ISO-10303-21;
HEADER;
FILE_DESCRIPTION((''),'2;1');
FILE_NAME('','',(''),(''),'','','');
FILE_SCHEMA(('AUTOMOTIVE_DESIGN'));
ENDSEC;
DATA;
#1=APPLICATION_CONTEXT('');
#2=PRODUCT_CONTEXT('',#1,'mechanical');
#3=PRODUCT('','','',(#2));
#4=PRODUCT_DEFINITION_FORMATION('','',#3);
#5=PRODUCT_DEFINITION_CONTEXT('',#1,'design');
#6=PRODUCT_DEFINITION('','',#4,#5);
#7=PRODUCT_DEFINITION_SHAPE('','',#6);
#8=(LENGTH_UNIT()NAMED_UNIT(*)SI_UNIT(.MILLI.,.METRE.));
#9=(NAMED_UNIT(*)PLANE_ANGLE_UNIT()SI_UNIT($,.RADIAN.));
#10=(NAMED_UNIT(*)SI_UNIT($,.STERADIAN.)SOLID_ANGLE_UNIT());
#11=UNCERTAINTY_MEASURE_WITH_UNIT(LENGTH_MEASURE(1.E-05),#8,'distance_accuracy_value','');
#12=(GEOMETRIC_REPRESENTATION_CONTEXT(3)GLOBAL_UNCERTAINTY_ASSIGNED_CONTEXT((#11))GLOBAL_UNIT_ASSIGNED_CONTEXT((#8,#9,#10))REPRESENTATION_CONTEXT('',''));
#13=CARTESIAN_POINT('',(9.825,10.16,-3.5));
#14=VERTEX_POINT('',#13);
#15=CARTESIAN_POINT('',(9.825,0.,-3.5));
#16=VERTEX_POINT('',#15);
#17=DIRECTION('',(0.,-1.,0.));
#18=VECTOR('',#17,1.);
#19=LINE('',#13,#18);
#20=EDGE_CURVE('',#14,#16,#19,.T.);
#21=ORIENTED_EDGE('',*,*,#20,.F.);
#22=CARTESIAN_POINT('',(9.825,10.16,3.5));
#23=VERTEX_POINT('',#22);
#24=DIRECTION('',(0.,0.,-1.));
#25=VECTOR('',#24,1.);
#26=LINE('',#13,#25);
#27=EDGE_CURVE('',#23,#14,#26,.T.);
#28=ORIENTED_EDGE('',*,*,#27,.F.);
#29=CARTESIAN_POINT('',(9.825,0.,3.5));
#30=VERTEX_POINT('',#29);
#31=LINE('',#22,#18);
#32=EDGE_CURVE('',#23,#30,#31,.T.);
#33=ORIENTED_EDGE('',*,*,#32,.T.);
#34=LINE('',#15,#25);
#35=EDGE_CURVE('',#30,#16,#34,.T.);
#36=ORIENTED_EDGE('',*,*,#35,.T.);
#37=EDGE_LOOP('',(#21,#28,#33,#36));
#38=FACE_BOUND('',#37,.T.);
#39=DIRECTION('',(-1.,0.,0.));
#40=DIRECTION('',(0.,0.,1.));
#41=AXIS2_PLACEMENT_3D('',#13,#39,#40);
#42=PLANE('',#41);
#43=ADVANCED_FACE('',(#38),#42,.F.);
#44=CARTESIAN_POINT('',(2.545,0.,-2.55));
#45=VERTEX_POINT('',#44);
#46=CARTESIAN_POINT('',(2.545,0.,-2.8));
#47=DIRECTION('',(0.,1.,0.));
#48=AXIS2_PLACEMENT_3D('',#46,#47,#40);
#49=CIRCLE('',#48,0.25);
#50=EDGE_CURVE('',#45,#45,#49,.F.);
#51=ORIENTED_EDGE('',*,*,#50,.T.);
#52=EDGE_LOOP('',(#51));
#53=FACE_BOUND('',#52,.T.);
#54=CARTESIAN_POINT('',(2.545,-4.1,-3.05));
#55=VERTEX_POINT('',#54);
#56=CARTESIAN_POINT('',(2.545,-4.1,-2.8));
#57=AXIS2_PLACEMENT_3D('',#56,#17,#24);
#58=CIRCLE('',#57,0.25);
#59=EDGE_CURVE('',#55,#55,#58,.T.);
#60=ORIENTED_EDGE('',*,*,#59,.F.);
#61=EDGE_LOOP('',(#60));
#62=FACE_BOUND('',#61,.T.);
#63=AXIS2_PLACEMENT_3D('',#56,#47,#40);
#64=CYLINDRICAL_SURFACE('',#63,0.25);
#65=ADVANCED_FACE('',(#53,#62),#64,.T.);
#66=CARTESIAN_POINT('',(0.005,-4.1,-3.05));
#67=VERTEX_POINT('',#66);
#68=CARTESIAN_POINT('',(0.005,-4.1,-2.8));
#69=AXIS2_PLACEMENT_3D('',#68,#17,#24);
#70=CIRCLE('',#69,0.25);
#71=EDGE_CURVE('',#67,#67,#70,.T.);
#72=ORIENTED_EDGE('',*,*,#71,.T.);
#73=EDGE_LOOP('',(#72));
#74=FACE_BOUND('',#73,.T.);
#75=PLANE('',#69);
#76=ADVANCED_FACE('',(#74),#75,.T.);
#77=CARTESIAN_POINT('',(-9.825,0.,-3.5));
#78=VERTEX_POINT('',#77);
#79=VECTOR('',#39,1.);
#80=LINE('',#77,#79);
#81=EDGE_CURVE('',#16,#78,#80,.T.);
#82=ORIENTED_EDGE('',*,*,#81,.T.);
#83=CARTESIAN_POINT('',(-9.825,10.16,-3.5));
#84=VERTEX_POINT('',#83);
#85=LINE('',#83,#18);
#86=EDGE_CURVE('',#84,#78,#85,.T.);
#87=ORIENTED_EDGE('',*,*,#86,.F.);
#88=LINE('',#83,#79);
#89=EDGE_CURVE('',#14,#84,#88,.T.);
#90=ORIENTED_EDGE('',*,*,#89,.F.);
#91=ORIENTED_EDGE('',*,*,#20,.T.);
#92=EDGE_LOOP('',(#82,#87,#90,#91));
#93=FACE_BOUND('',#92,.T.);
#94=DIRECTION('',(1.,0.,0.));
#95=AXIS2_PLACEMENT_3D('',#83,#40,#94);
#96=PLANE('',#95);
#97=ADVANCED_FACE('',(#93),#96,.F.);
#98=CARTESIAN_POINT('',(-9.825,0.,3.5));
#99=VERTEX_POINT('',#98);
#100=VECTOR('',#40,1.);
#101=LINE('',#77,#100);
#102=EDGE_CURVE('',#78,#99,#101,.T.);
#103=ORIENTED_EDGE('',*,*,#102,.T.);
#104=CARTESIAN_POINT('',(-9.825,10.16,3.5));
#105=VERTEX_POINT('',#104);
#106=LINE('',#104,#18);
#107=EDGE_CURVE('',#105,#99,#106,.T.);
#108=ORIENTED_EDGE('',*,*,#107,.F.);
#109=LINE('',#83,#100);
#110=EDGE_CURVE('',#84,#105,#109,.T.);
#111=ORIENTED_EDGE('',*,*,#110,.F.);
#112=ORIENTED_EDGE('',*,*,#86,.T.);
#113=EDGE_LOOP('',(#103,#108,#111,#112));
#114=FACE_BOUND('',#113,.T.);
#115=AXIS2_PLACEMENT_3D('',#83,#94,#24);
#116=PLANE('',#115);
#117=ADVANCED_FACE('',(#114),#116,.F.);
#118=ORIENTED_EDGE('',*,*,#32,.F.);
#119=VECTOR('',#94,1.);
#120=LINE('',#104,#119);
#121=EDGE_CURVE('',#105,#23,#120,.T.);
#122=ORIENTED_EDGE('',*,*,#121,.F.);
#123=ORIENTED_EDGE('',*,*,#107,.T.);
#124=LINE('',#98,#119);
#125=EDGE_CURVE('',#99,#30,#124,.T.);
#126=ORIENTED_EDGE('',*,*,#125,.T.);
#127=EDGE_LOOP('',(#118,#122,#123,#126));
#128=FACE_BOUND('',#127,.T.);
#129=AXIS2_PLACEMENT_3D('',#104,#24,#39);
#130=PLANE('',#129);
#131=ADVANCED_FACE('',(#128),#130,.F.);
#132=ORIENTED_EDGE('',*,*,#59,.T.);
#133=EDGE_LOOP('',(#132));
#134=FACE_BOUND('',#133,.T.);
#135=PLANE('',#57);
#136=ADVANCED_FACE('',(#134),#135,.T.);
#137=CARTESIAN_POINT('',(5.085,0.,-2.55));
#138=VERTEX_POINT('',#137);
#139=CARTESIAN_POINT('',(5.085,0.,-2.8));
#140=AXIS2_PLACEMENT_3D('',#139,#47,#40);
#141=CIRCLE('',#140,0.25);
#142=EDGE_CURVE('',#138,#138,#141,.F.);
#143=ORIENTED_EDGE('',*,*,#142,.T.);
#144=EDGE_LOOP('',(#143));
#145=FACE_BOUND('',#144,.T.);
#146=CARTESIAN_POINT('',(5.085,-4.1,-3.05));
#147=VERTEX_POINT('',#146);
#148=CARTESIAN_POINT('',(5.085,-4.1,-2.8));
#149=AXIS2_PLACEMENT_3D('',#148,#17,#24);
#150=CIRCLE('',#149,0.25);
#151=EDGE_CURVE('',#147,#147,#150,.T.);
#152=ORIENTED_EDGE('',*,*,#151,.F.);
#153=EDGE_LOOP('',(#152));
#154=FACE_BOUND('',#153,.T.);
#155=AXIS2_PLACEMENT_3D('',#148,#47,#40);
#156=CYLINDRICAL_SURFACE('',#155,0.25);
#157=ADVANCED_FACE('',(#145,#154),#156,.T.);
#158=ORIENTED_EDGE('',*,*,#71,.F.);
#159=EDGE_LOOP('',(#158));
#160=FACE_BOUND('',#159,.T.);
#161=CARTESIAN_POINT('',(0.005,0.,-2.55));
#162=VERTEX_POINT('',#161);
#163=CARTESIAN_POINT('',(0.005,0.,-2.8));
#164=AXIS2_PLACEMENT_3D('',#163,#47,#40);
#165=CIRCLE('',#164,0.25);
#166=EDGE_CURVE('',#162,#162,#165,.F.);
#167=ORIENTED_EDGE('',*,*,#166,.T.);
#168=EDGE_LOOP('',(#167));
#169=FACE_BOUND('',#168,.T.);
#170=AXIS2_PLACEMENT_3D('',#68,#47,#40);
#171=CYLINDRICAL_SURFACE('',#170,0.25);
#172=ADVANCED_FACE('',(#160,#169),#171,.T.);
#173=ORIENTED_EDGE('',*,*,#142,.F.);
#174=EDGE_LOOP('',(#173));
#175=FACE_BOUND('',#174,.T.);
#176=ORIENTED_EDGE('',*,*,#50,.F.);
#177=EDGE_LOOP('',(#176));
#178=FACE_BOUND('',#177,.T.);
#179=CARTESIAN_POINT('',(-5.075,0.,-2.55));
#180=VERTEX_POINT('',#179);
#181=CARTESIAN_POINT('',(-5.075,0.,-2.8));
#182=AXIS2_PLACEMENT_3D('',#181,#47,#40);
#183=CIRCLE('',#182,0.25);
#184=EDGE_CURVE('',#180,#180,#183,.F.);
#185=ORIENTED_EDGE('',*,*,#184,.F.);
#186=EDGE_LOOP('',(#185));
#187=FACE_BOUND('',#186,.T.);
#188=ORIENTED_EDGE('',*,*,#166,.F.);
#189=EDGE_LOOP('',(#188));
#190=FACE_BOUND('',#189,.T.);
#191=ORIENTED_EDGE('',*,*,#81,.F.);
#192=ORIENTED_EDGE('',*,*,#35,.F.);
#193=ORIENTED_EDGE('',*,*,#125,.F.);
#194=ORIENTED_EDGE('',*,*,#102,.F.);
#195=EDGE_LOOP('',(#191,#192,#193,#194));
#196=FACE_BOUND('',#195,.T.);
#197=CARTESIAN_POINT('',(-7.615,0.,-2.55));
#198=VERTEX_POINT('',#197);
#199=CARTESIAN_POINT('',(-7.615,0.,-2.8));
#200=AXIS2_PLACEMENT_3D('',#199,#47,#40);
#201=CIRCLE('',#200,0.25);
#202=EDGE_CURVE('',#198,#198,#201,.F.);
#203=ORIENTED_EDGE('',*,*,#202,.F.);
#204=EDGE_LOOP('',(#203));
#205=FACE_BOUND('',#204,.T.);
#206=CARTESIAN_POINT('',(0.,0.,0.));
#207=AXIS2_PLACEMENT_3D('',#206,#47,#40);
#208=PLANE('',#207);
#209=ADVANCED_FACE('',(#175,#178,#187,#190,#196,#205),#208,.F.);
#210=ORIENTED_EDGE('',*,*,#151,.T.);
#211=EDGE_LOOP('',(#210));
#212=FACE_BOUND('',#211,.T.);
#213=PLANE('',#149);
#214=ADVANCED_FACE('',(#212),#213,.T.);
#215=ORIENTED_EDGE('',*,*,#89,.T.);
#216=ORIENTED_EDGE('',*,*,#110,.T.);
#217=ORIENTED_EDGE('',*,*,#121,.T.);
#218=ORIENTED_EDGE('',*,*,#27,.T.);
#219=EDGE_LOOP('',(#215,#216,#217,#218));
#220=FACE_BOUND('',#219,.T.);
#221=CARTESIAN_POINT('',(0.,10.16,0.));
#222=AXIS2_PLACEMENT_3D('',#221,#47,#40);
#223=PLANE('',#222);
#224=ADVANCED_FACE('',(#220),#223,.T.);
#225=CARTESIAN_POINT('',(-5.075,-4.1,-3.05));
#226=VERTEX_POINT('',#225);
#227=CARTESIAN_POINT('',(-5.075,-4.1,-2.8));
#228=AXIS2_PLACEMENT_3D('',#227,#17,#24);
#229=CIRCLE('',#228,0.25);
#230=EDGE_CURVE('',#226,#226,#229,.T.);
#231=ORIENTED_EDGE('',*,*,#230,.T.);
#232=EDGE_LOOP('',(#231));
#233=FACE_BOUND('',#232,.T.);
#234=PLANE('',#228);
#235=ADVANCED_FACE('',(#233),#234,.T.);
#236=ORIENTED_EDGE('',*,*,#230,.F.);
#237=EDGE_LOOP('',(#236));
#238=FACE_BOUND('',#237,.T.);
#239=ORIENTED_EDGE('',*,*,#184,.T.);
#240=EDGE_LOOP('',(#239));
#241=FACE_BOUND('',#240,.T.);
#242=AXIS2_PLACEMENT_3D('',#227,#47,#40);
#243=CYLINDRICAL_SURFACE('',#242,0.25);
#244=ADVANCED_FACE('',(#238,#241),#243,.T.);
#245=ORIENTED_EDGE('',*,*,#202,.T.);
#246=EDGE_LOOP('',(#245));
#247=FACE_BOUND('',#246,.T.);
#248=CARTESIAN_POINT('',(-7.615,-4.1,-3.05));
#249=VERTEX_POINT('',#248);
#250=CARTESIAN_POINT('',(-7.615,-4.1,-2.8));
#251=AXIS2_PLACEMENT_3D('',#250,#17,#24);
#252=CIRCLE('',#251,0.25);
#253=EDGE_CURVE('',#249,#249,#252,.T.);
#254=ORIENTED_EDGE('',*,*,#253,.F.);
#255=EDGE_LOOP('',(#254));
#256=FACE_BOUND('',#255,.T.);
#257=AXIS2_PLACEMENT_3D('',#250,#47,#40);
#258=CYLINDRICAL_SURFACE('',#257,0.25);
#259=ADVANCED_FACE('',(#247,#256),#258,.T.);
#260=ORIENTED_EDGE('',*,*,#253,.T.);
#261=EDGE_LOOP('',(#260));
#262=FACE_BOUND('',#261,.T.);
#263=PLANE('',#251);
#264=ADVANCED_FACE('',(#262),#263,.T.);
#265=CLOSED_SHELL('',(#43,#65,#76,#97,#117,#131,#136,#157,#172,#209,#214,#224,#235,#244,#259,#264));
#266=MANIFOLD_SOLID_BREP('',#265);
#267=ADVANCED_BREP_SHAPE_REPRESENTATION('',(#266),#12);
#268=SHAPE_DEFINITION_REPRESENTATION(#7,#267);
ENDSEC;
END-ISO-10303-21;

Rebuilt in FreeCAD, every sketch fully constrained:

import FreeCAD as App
import Part
import Sketcher
Q = App.Units.Quantity


def add_polygon(sketch, points):
    """Adds a closed chain of lines whose ends are joined by coincident constraints."""
    first, n = sketch.GeometryCount, len(points)
    for a, b in zip(points, points[1:] + points[:1]):
        sketch.addGeometry(Part.LineSegment(App.Vector(*a, 0), App.Vector(*b, 0)), False)
    for i in range(n):
        sketch.addConstraint(Sketcher.Constraint("Coincident", first + i, 2, first + (i + 1) % n, 1))

doc = App.newDocument("Part")
body = doc.addObject("PartDesign::Body", "Body")

# Sketch on XZ plane
sketch1 = doc.addObject("Sketcher::SketchObject", "Sketch")
body.addObject(sketch1)
sketch1.AttachmentSupport = (doc.XZ_Plane, [""])
sketch1.MapMode = "FlatFace"
add_polygon(sketch1, [(-10, -4), (-10, 4), (10, 4), (10, -4)])  # lines 0-3
sketch1.addConstraint(Sketcher.Constraint("Vertical", 0))
sketch1.addConstraint(Sketcher.Constraint("Horizontal", 1))
sketch1.addConstraint(Sketcher.Constraint("Vertical", 2))
sketch1.addConstraint(Sketcher.Constraint("Horizontal", 3))
sketch1.addConstraint(Sketcher.Constraint("Symmetric", 0, 2, 2, 2, -1, 1))
sketch1.addConstraint(Sketcher.Constraint("DistanceY", 0, 1, 0, 2, Q("7 mm")))
sketch1.addConstraint(Sketcher.Constraint("DistanceX", 1, 1, 1, 2, Q("19.65 mm")))
pad1 = doc.addObject("PartDesign::Pad", "Pad")
body.addObject(pad1)
pad1.Profile = sketch1
pad1.Length = 10.16
pad1.Reversed = True

# Sketch on XZ plane
sketch2 = doc.addObject("Sketcher::SketchObject", "Sketch001")
body.addObject(sketch2)
sketch2.AttachmentSupport = (doc.XZ_Plane, [""])
sketch2.MapMode = "FlatFace"
sketch2.addGeometry(Part.Circle(App.Vector(0.01, -2.8, 0), App.Vector(0, 0, 1), 0.25), False)
sketch2.addGeometry(Part.Circle(App.Vector(2.54, -2.8, 0), App.Vector(0, 0, 1), 0.25), False)
sketch2.addGeometry(Part.Circle(App.Vector(5.08, -2.8, 0), App.Vector(0, 0, 1), 0.25), False)
sketch2.addGeometry(Part.Circle(App.Vector(-5.08, -2.8, 0), App.Vector(0, 0, 1), 0.25), False)
sketch2.addGeometry(Part.Circle(App.Vector(-7.62, -2.8, 0), App.Vector(0, 0, 1), 0.25), False)
sketch2.addConstraint(Sketcher.Constraint("Equal", 0, 1))
sketch2.addConstraint(Sketcher.Constraint("Equal", 1, 2))
sketch2.addConstraint(Sketcher.Constraint("Equal", 2, 3))
sketch2.addConstraint(Sketcher.Constraint("Equal", 3, 4))
sketch2.addConstraint(Sketcher.Constraint("Horizontal", 0, 3, 1, 3))
sketch2.addConstraint(Sketcher.Constraint("Horizontal", 1, 3, 2, 3))
sketch2.addConstraint(Sketcher.Constraint("Horizontal", 2, 3, 3, 3))
sketch2.addConstraint(Sketcher.Constraint("Horizontal", 3, 3, 4, 3))
sketch2.addConstraint(Sketcher.Constraint("Diameter", 0, Q("0.5 mm")))
sketch2.addConstraint(Sketcher.Constraint("DistanceY", 0, 3, -1, 1, Q("2.8 mm")))
sketch2.addConstraint(Sketcher.Constraint("DistanceX", 4, 3, 2, 3, Q("12.7 mm")))
sketch2.addConstraint(Sketcher.Constraint("DistanceX", 0, 3, 1, 3, Q("2.54 mm")))
sketch2.addConstraint(Sketcher.Constraint("DistanceX", 1, 3, 2, 3, Q("2.54 mm")))
sketch2.addConstraint(Sketcher.Constraint("DistanceX", 3, 3, 0, 3, Q("5.08 mm")))
sketch2.addConstraint(Sketcher.Constraint("DistanceX", -1, 1, 0, 3, Q("0.005 mm")))
pad2 = doc.addObject("PartDesign::Pad", "Pad001")
body.addObject(pad2)
pad2.Profile = sketch2
pad2.Length = 4.1

doc.recompute()
